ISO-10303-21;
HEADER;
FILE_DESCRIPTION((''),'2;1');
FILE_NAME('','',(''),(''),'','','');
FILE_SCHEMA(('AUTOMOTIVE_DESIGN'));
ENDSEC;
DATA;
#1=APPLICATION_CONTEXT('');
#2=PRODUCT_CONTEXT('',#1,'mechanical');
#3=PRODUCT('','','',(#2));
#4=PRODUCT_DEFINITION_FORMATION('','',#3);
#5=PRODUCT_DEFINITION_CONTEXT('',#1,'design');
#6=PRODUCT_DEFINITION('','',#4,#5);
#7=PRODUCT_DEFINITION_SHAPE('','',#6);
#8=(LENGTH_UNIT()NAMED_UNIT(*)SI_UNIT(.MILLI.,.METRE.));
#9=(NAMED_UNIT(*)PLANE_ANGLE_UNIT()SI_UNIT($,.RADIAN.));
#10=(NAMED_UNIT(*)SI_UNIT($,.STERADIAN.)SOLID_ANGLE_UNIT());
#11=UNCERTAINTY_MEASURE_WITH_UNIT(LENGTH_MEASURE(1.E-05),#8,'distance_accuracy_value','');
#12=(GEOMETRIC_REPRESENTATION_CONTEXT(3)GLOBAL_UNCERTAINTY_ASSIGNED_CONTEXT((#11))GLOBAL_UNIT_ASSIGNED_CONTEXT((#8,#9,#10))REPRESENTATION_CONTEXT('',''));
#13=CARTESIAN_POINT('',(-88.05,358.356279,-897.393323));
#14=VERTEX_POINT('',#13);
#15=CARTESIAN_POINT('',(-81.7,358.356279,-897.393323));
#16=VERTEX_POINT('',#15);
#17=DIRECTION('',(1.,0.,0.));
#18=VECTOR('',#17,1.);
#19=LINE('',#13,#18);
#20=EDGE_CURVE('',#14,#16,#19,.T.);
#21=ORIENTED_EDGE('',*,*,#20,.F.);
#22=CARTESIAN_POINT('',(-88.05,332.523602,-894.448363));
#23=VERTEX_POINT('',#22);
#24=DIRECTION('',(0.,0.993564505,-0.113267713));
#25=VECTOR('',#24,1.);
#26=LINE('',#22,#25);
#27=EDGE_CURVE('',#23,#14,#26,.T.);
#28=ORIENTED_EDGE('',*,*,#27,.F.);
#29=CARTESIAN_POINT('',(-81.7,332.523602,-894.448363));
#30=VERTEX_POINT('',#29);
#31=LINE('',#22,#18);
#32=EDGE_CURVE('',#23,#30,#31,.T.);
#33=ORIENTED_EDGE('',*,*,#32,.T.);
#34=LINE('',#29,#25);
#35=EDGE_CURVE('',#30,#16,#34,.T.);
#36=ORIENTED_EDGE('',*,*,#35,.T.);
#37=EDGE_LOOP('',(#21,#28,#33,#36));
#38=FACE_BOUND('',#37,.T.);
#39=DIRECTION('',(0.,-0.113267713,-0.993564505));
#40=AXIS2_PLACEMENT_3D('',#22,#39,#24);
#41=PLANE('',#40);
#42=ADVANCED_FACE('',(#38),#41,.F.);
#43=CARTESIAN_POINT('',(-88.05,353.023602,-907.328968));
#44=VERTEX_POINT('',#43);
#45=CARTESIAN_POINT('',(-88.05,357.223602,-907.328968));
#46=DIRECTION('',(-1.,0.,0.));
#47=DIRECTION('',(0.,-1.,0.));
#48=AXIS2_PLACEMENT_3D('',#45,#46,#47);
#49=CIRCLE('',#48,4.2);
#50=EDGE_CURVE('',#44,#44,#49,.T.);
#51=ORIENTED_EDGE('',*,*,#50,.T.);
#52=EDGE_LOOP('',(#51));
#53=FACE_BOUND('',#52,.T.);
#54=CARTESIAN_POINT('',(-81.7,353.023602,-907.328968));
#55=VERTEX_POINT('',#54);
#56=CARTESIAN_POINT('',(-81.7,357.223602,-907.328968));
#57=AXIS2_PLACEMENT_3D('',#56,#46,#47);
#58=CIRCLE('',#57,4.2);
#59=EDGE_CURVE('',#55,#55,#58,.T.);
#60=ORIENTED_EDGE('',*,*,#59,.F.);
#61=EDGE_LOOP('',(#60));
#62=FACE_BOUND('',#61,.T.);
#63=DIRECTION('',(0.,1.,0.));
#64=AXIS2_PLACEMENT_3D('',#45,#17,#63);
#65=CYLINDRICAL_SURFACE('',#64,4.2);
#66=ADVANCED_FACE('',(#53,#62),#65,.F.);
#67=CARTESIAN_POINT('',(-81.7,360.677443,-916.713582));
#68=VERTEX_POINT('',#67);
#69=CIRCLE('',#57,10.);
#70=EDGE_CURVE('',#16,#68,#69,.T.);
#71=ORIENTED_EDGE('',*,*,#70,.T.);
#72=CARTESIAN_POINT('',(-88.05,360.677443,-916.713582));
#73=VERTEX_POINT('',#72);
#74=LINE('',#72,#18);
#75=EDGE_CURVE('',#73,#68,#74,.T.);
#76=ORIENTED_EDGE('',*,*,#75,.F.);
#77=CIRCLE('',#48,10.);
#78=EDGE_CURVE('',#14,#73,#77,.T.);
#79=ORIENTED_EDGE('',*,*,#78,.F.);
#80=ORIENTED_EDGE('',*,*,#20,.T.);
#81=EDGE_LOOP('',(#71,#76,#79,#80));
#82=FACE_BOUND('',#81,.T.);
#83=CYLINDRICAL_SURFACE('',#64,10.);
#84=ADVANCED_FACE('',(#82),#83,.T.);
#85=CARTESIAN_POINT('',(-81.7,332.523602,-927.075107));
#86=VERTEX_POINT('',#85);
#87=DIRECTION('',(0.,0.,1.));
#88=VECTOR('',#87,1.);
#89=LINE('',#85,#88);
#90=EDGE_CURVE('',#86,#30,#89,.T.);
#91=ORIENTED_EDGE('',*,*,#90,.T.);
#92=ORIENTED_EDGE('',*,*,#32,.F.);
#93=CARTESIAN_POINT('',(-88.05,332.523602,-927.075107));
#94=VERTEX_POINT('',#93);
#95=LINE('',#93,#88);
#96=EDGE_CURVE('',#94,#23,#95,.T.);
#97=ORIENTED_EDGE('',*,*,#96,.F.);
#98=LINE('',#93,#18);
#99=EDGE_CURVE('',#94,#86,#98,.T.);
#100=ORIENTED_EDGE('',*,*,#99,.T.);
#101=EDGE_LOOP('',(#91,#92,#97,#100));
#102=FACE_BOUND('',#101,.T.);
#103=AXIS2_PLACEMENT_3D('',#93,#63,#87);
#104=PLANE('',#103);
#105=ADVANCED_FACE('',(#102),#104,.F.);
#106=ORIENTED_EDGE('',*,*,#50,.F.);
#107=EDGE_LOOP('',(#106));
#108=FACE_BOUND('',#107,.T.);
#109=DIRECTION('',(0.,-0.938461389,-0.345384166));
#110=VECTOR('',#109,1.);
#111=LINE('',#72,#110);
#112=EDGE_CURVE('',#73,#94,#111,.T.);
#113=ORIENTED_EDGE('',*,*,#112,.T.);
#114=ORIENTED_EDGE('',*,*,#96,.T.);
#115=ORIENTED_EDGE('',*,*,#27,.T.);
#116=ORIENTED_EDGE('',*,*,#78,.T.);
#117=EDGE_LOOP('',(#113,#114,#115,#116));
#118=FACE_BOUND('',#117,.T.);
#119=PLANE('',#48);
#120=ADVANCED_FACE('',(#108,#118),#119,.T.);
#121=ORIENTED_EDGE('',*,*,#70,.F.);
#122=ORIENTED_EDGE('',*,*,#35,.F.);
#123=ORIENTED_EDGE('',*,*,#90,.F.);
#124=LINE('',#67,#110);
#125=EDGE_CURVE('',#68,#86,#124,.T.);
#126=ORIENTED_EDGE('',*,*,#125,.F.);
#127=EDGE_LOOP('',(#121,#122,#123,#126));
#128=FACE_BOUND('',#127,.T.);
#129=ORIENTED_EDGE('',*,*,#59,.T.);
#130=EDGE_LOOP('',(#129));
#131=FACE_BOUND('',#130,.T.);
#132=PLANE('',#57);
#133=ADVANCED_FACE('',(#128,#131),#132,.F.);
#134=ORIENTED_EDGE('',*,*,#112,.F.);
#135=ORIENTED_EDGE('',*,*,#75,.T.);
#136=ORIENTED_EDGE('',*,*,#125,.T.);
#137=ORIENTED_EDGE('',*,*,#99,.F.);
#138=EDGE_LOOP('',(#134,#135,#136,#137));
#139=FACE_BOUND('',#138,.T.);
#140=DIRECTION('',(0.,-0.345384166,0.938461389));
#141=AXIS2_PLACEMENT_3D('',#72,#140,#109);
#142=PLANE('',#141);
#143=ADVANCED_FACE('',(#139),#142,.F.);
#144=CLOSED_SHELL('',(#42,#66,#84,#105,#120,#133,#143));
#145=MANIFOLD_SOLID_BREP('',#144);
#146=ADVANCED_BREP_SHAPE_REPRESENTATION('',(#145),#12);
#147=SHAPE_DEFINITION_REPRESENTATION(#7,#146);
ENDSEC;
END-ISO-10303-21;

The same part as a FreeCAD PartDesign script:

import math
import FreeCAD as App
import Part
import Sketcher
Q = App.Units.Quantity

doc = App.newDocument("Part")
body = doc.addObject("PartDesign::Body", "Body")

# Sketch on YZ plane
sketch1 = body.newObject("Sketcher::SketchObject", "Sketch")
sketch1.AttachmentSupport = (doc.getObject("YZ_Plane"), [""])
sketch1.MapMode = "FlatFace"
sketch1.AttachmentOffset = App.Placement(App.Vector(0, 0, -81.7), App.Rotation())
sketch1.addGeometry(Part.LineSegment(App.Vector(360.7, -916.7, 0), App.Vector(332.5, -927.1, 0)), False)
sketch1.addGeometry(Part.LineSegment(App.Vector(332.5, -927.1, 0), App.Vector(332.5, -894.4, 0)), False)
sketch1.addGeometry(Part.LineSegment(App.Vector(332.5, -894.4, 0), App.Vector(358.4, -897.4, 0)), False)
sketch1.addGeometry(Part.ArcOfCircle(Part.Circle(App.Vector(357.2, -907.3, 0), App.Vector(0, 0, 1), 10), math.radians(-70), math.radians(83)), False)
sketch1.addGeometry(Part.Circle(App.Vector(357.2, -907.3, 0), App.Vector(0, 0, 1), 4.2), False)
sketch1.addConstraint(Sketcher.Constraint("Coincident", 0, 2, 1, 1))
sketch1.addConstraint(Sketcher.Constraint("Coincident", 1, 2, 2, 1))
sketch1.addConstraint(Sketcher.Constraint("Tangent", 2, 2, 3, 2))
sketch1.addConstraint(Sketcher.Constraint("Tangent", 3, 1, 0, 1))
sketch1.addConstraint(Sketcher.Constraint("Vertical", 1))
sketch1.addConstraint(Sketcher.Constraint("Coincident", 4, 3, 3, 3))
sketch1.addConstraint(Sketcher.Constraint("Radius", 3, Q("10 mm")))
sketch1.addConstraint(Sketcher.Constraint("Diameter", 4, Q("8.4 mm")))
sketch1.addConstraint(Sketcher.Constraint("Distance", 0, Q("30 mm")))
sketch1.addConstraint(Sketcher.Constraint("Distance", 2, Q("26 mm")))
sketch1.addConstraint(Sketcher.Constraint("DistanceX", 0, 2, 3, 3, Q("24.7 mm")))
sketch1.addConstraint(Sketcher.Constraint("DistanceX", -1, 1, 3, 3, Q("357.223602 mm")))
sketch1.addConstraint(Sketcher.Constraint("DistanceY", 3, 3, -1, 1, Q("907.328968 mm")))
pad1 = body.newObject("PartDesign::Pad", "Pad")
pad1.Profile = sketch1
pad1.Length = 6.35
pad1.Reversed = True

doc.recompute()
